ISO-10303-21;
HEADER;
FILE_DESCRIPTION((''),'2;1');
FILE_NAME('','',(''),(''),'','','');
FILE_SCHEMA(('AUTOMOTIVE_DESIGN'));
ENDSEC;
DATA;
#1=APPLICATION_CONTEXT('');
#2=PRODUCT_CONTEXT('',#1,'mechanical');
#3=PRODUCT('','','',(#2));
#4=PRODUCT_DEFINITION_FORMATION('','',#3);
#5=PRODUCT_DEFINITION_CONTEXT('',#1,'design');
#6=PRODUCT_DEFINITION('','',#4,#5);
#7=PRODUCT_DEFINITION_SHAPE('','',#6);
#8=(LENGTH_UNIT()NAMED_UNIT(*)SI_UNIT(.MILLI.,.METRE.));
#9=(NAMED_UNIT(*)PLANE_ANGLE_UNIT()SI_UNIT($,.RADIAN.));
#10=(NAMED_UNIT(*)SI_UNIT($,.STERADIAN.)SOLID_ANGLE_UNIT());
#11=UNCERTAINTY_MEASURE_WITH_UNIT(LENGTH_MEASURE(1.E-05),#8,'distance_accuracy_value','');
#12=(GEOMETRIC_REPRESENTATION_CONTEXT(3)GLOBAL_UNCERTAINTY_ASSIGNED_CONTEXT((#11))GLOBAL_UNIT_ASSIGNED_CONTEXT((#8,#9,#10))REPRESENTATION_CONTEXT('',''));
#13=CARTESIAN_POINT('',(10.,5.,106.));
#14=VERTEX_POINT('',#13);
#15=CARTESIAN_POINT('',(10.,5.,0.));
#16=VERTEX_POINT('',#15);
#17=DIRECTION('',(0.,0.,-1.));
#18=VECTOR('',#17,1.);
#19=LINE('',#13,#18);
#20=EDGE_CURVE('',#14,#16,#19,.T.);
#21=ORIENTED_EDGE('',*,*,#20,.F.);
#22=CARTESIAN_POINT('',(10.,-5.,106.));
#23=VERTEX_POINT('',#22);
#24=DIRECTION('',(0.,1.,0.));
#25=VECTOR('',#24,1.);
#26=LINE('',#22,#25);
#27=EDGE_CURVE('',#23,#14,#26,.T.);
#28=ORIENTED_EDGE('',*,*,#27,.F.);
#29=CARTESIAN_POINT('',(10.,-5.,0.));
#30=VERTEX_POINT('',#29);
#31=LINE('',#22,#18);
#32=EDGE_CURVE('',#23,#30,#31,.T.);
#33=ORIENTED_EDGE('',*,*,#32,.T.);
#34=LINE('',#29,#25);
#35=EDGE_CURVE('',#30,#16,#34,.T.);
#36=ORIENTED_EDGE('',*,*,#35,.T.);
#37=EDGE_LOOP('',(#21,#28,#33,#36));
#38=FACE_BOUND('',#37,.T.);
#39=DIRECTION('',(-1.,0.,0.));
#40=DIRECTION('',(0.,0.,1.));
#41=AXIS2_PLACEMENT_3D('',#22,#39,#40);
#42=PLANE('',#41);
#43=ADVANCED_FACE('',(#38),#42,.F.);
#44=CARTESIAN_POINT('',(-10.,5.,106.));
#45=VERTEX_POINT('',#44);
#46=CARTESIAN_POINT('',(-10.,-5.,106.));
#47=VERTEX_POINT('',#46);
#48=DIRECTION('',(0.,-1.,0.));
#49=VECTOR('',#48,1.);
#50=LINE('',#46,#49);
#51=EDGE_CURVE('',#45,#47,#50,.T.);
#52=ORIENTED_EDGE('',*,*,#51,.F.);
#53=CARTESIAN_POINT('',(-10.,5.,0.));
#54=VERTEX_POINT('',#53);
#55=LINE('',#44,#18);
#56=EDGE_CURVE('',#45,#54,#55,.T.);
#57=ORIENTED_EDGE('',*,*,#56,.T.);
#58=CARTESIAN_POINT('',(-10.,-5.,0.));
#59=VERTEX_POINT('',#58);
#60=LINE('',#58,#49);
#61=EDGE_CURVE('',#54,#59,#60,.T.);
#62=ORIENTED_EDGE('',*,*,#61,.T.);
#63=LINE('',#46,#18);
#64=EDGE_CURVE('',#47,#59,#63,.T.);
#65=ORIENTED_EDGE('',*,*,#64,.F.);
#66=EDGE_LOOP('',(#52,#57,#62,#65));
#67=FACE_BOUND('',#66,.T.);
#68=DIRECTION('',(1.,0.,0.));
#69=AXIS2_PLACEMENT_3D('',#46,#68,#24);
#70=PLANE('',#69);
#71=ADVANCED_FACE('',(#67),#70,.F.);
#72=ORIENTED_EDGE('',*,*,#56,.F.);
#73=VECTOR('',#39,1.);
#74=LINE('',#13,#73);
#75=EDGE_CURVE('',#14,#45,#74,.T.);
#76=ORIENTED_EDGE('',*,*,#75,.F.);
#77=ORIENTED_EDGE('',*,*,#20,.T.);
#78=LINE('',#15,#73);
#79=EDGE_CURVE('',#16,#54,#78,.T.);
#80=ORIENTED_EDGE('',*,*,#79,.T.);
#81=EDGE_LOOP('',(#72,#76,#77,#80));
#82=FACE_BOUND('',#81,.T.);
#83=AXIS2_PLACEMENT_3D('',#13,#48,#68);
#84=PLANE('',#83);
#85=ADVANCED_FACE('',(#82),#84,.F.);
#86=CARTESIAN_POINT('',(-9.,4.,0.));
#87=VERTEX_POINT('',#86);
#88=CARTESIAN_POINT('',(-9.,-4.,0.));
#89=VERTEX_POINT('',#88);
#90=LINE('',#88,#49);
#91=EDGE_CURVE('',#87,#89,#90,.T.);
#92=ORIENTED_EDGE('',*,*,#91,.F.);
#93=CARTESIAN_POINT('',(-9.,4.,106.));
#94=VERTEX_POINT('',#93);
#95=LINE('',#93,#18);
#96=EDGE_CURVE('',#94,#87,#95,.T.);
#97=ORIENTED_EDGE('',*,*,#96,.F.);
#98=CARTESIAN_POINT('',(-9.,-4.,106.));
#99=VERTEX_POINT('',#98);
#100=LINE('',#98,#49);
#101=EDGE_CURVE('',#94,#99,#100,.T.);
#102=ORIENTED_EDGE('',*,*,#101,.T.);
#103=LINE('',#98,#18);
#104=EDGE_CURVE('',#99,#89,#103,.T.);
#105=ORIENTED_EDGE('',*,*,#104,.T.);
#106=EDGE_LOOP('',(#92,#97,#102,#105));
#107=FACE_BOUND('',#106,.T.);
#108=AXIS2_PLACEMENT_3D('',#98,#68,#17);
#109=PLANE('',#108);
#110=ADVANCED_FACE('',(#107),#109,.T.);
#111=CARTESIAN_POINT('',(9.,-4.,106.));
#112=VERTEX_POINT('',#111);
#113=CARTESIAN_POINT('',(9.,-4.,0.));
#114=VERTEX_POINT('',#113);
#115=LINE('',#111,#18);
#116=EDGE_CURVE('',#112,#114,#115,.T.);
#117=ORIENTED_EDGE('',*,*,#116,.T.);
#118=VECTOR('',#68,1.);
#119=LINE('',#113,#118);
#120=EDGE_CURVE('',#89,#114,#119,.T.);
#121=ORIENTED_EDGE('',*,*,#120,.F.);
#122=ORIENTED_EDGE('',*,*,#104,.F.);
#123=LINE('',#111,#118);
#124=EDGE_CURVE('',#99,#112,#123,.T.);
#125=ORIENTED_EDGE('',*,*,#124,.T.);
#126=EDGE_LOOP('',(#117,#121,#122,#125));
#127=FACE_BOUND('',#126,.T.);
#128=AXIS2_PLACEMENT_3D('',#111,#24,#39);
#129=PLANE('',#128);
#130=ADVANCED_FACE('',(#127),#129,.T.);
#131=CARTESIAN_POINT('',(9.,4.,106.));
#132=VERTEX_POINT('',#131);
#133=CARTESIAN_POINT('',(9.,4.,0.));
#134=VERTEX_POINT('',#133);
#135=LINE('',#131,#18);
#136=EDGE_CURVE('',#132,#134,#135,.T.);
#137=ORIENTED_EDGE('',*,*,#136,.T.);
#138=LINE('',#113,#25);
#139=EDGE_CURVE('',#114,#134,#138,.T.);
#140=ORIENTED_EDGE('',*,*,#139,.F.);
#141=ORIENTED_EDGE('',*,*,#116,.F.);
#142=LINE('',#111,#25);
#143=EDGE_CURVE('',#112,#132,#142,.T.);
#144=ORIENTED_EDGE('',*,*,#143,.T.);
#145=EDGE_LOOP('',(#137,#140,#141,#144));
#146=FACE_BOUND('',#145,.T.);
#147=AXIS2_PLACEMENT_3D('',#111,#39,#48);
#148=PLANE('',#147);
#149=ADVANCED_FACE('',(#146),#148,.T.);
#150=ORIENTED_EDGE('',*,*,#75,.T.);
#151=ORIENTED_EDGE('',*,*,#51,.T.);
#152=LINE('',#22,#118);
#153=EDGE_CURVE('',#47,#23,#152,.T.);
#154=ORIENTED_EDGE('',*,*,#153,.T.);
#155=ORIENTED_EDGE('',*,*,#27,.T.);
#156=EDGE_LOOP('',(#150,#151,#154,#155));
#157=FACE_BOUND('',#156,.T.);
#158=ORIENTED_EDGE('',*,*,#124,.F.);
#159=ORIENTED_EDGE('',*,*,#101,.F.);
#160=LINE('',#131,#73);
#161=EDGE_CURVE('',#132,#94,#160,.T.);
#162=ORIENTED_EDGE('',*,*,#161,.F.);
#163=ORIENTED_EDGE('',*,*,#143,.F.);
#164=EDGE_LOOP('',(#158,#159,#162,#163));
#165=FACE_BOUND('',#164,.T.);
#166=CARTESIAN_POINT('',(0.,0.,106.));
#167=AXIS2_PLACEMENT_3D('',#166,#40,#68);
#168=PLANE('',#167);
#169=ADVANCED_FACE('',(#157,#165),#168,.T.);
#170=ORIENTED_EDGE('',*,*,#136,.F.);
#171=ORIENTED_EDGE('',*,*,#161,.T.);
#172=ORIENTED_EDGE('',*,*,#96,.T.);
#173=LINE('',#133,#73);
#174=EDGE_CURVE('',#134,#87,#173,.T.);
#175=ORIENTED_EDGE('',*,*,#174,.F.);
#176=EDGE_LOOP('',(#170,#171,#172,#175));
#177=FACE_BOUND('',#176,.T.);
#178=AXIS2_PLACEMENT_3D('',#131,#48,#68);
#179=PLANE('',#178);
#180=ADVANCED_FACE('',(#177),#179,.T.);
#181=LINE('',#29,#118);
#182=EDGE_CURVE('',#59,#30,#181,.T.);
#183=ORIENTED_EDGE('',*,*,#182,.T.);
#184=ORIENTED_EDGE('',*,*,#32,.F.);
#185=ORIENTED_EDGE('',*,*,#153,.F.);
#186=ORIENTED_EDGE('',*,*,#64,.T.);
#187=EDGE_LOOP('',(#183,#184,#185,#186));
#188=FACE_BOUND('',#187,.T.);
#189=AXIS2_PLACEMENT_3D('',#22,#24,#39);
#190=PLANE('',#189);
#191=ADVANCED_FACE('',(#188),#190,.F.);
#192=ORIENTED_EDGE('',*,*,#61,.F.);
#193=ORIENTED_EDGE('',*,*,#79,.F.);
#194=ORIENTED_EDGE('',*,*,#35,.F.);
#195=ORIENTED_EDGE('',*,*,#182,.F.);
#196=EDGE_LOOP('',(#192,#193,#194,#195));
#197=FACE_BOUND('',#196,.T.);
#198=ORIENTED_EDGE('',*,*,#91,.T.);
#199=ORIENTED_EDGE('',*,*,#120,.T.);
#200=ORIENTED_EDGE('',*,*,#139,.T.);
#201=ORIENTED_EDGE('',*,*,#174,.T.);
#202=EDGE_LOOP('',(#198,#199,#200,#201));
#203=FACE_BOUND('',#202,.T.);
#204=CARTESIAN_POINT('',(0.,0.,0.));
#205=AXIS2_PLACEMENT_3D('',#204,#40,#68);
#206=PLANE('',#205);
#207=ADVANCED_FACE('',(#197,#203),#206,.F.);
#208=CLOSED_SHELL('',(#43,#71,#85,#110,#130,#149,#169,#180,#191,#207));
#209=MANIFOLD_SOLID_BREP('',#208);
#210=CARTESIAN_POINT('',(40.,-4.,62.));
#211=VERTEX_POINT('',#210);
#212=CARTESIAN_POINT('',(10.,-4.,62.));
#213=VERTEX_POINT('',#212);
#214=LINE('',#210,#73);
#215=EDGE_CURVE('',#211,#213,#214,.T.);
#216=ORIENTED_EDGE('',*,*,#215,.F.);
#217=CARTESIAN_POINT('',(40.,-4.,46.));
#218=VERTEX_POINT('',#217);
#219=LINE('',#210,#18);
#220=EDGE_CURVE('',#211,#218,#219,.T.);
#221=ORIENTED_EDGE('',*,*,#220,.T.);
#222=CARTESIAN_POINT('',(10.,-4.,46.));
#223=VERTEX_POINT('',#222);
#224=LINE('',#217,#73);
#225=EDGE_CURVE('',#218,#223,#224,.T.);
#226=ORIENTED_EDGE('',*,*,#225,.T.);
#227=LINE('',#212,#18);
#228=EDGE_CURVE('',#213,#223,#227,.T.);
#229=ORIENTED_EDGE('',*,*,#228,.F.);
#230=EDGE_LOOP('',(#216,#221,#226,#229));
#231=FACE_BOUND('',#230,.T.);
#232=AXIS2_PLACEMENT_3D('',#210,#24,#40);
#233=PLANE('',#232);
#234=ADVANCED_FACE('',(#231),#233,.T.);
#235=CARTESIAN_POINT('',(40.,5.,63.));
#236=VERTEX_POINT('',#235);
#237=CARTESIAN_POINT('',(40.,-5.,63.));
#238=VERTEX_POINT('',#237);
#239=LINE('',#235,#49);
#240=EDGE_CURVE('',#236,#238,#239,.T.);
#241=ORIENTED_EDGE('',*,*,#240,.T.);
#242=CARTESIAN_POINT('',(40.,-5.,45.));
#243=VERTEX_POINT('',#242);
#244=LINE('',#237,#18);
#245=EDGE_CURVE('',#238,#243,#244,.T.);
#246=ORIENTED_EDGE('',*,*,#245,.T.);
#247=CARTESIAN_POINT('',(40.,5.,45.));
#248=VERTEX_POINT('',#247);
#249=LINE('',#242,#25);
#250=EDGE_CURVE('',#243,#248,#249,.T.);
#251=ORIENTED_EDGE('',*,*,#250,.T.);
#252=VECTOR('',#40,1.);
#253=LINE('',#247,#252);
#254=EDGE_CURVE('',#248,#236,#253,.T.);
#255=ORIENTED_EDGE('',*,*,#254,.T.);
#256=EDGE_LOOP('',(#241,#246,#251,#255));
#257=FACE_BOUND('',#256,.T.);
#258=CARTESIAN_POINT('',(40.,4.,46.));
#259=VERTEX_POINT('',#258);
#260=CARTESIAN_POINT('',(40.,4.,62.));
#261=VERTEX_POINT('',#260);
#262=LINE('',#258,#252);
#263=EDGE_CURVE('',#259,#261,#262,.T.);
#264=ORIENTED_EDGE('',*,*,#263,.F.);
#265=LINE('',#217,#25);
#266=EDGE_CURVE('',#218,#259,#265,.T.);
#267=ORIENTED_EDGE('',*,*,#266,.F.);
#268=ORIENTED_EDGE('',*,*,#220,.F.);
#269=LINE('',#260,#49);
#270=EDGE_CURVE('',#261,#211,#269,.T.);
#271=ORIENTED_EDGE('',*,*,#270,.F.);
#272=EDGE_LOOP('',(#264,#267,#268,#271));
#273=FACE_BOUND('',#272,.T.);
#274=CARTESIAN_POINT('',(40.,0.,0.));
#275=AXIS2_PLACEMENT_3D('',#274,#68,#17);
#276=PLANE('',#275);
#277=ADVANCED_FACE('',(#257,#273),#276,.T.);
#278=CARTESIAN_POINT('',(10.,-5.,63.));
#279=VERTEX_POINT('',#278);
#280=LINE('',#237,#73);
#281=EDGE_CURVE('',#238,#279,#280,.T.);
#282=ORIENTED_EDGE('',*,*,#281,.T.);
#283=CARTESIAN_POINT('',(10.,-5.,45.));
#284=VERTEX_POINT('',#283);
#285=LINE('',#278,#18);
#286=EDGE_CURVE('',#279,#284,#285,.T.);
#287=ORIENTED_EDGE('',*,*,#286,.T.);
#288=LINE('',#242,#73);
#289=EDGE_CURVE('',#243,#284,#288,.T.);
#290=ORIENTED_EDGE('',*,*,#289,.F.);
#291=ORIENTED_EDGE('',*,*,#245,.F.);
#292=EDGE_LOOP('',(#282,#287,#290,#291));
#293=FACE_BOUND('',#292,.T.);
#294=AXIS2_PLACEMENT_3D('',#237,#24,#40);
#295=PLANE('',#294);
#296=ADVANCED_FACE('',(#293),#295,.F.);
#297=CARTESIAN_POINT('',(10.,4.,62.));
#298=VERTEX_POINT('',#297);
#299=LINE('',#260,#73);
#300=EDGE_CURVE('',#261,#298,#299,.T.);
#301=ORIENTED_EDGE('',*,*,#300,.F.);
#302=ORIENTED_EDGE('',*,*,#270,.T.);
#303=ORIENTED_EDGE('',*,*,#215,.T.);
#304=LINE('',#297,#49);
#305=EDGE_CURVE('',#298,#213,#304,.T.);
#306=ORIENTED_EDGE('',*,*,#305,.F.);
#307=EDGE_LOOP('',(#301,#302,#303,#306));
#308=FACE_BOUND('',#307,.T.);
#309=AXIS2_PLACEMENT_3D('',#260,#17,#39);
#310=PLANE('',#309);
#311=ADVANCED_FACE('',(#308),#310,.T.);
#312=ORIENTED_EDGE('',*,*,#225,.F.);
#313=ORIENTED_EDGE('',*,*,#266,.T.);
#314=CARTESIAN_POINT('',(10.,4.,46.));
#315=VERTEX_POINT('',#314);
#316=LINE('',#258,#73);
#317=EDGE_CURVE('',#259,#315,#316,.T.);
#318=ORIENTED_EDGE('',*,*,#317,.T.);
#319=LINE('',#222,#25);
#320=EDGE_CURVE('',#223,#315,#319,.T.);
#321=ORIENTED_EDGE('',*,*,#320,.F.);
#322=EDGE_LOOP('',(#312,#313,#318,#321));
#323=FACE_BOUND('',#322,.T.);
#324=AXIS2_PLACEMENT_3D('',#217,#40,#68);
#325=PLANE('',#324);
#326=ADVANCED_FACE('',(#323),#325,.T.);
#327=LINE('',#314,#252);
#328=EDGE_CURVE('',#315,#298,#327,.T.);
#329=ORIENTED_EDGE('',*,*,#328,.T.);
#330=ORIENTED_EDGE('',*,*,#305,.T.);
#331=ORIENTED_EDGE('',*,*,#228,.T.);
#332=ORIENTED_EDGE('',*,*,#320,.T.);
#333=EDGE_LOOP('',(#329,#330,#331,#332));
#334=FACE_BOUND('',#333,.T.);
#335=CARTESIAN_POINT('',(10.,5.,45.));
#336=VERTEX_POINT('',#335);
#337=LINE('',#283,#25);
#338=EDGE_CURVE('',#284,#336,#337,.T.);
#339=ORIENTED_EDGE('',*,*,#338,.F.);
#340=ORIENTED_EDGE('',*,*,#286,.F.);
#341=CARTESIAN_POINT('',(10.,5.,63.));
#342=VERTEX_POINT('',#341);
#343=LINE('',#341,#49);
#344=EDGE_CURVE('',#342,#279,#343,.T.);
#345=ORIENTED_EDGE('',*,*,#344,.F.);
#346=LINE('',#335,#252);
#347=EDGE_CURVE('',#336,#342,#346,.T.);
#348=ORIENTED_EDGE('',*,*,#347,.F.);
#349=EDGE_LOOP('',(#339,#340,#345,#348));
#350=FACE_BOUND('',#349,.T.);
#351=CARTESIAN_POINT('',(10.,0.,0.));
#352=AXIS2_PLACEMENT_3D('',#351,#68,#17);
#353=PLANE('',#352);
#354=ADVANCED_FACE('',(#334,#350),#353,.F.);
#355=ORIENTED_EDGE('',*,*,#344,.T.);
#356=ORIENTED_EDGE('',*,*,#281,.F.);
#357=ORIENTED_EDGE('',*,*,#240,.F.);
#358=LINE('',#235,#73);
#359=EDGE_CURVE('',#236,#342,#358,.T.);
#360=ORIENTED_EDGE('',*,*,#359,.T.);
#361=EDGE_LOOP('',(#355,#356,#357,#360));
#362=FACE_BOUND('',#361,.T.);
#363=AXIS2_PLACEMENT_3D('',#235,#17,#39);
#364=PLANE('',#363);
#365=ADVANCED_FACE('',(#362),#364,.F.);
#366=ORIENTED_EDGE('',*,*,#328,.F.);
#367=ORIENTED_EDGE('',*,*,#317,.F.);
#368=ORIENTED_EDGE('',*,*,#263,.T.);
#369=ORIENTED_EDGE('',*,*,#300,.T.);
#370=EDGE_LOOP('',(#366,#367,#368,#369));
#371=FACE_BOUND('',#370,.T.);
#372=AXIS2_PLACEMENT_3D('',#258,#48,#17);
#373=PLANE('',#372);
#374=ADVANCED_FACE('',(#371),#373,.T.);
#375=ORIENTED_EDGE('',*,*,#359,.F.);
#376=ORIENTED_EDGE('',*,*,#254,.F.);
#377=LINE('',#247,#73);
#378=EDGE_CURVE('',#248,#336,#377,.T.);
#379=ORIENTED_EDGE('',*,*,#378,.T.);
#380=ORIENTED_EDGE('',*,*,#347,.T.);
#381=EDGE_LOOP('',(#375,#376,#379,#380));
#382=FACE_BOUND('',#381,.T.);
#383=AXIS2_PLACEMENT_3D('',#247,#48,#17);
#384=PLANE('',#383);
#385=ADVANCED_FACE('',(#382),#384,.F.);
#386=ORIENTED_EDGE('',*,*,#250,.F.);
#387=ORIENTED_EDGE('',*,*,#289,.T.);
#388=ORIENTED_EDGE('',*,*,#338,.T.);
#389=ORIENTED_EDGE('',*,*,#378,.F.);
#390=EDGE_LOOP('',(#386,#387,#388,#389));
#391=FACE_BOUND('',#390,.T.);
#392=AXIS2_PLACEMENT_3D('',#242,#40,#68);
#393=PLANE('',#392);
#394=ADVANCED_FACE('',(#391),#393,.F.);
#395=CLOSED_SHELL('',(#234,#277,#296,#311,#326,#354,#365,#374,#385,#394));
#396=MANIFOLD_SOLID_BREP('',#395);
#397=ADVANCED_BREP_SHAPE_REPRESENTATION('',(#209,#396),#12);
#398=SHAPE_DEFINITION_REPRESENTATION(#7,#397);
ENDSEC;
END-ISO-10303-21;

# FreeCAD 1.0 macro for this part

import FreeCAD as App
import Part
import Sketcher

V = App.Vector
Q = App.Units.Quantity


def add_polygon(sketch, points):
    """Adds a closed chain of lines whose ends are joined by coincident constraints."""
    first, n = sketch.GeometryCount, len(points)
    for a, b in zip(points, points[1:] + points[:1]):
        sketch.addGeometry(Part.LineSegment(App.Vector(*a, 0), App.Vector(*b, 0)), False)
    for i in range(n):
        sketch.addConstraint(Sketcher.Constraint("Coincident", first + i, 2, first + (i + 1) % n, 1))

doc = App.newDocument("Part")
body = doc.addObject("PartDesign::Body", "Body")

# Sketch on XY plane
sketch1 = doc.addObject("Sketcher::SketchObject", "Sketch")
body.addObject(sketch1)
sketch1.AttachmentSupport = (doc.XY_Plane, [""])
sketch1.MapMode = "FlatFace"
add_polygon(sketch1, [(-10, 5), (-10, -5), (10, -5), (10, 5)])  # lines 0-3
add_polygon(sketch1, [(9, -4), (-9, -4), (-9, 4), (9, 4)])  # lines 4-7
sketch1.addConstraint(Sketcher.Constraint("Vertical", 0))
sketch1.addConstraint(Sketcher.Constraint("Horizontal", 1))
sketch1.addConstraint(Sketcher.Constraint("Vertical", 2))
sketch1.addConstraint(Sketcher.Constraint("Horizontal", 3))
sketch1.addConstraint(Sketcher.Constraint("Horizontal", 4))
sketch1.addConstraint(Sketcher.Constraint("Vertical", 5))
sketch1.addConstraint(Sketcher.Constraint("Horizontal", 6))
sketch1.addConstraint(Sketcher.Constraint("Vertical", 7))
sketch1.addConstraint(Sketcher.Constraint("Symmetric", 0, 2, 2, 2, -1, 1))
sketch1.addConstraint(Sketcher.Constraint("Symmetric", 4, 2, 6, 2, -1, 1))
sketch1.addConstraint(Sketcher.Constraint("DistanceX", 1, 1, 1, 2, Q("20 mm")))
sketch1.addConstraint(Sketcher.Constraint("DistanceX", 4, 2, 4, 1, Q("18 mm")))
sketch1.addConstraint(Sketcher.Constraint("DistanceY", 0, 2, 0, 1, Q("10 mm")))
sketch1.addConstraint(Sketcher.Constraint("DistanceY", 5, 1, 5, 2, Q("8 mm")))
pad1 = doc.addObject("PartDesign::Pad", "Pad")
body.addObject(pad1)
pad1.Profile = sketch1
pad1.Length = 106
body2 = doc.addObject("PartDesign::Body", "Body001")

# Sketch on YZ plane
sketch2 = doc.addObject("Sketcher::SketchObject", "Sketch001")
body2.addObject(sketch2)
sketch2.AttachmentSupport = (doc.getObject("YZ_Plane001"), [""])
sketch2.MapMode = "FlatFace"
sketch2.AttachmentOffset = App.Placement(V(0, 0, 10), App.Rotation())
add_polygon(sketch2, [(5, 63), (-5, 63), (-5, 45), (5, 45)])  # lines 0-3
add_polygon(sketch2, [(-4, 46), (-4, 62), (4, 62), (4, 46)])  # lines 4-7
sketch2.addConstraint(Sketcher.Constraint("Horizontal", 0))
sketch2.addConstraint(Sketcher.Constraint("Vertical", 1))
sketch2.addConstraint(Sketcher.Constraint("Horizontal", 2))
sketch2.addConstraint(Sketcher.Constraint("Vertical", 3))
sketch2.addConstraint(Sketcher.Constraint("Vertical", 4))
sketch2.addConstraint(Sketcher.Constraint("Horizontal", 5))
sketch2.addConstraint(Sketcher.Constraint("Vertical", 6))
sketch2.addConstraint(Sketcher.Constraint("Horizontal", 7))
sketch2.addConstraint(Sketcher.Constraint("DistanceX", 0, 2, 0, 1, Q("10 mm")))
sketch2.addConstraint(Sketcher.Constraint("DistanceX", 5, 1, 5, 2, Q("8 mm")))
sketch2.addConstraint(Sketcher.Constraint("DistanceY", 1, 2, 1, 1, Q("18 mm")))
sketch2.addConstraint(Sketcher.Constraint("DistanceY", 4, 1, 4, 2, Q("16 mm")))
sketch2.addConstraint(Sketcher.Constraint("DistanceX", 0, 2, -1, 1, Q("5 mm")))
sketch2.addConstraint(Sketcher.Constraint("DistanceY", -1, 1, 0, 2, Q("63 mm")))
sketch2.addConstraint(Sketcher.Constraint("DistanceX", 4, 2, -1, 1, Q("4 mm")))
sketch2.addConstraint(Sketcher.Constraint("DistanceY", -1, 1, 4, 2, Q("62 mm")))
pad2 = doc.addObject("PartDesign::Pad", "Pad001")
body2.addObject(pad2)
pad2.Profile = sketch2
pad2.Length = 30

doc.recompute()
